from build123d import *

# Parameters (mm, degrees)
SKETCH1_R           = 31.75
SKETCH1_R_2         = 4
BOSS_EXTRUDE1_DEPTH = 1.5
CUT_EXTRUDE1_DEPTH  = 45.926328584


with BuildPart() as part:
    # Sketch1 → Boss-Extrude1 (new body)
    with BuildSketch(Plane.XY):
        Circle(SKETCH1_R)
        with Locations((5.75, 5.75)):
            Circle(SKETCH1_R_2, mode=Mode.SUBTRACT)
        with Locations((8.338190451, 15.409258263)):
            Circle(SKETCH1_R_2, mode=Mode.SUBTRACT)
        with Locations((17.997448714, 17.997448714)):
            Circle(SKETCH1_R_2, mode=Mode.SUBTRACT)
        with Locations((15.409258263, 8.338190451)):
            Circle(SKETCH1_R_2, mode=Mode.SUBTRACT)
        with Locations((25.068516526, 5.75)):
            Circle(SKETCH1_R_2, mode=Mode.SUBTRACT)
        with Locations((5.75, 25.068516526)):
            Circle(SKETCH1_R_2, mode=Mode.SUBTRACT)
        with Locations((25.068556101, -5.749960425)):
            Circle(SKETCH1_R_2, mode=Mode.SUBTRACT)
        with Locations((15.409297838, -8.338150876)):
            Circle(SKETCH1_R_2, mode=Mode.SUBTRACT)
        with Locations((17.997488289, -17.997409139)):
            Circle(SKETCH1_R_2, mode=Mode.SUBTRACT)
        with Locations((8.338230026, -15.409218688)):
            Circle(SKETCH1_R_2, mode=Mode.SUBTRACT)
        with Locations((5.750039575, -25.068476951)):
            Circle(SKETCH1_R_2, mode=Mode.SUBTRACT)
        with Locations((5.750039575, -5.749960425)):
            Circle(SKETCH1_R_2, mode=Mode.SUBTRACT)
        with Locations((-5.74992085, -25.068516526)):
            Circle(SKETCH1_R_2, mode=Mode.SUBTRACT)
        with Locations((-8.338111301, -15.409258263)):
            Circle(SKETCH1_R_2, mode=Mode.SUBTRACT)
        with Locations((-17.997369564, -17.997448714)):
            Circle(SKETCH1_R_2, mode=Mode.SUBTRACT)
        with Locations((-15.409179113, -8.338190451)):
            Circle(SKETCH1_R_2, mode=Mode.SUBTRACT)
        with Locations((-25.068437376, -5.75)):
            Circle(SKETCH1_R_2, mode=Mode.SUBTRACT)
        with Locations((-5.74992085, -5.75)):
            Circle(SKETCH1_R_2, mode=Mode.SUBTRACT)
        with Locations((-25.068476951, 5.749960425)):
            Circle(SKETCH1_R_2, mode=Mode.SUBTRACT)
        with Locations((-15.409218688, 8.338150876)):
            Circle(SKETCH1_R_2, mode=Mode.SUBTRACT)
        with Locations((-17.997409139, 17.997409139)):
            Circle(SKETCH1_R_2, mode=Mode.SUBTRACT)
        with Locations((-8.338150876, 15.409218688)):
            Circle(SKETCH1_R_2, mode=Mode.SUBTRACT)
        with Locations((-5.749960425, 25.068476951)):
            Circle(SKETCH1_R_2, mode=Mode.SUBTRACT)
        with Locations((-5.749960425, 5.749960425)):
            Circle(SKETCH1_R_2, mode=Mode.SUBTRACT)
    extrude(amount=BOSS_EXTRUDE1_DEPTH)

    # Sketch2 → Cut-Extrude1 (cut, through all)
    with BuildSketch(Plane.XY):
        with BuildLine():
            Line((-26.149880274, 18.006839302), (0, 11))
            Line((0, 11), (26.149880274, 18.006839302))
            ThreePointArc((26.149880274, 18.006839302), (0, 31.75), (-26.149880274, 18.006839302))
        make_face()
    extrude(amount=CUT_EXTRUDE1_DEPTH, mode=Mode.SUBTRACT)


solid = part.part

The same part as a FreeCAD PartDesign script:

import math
import FreeCAD as App
import Part
import Sketcher
from FreeCAD import Vector
Q = App.Units.Quantity

doc = App.newDocument("Part")
body = doc.addObject("PartDesign::Body", "Body")

# Sketch on XY plane
sketch1 = doc.addObject("Sketcher::SketchObject", "Sketch")
body.addObject(sketch1)
sketch1.AttachmentSupport = (doc.XY_Plane, [""])
sketch1.MapMode = "FlatFace"
sketch1.addGeometry([
    Part.Circle(Vector(0, 0, 0), Vector(0, 0, 1), 31.8),  # 0
    Part.Circle(Vector(-18, -18, 0), Vector(0, 0, 1), 4),  # 1
    Part.Circle(Vector(-5.7, -25.1, 0), Vector(0, 0, 1), 4),  # 2
    Part.Circle(Vector(-8.3, -15.4, 0), Vector(0, 0, 1), 4),  # 3
    Part.Circle(Vector(-15.4, -8.3, 0), Vector(0, 0, 1), 4),  # 4
    Part.Circle(Vector(-25.1, -5.8, 0), Vector(0, 0, 1), 4),  # 5
    Part.Circle(Vector(-5.7, -5.8, 0), Vector(0, 0, 1), 4),  # 6
    Part.Circle(Vector(5.8, -25.1, 0), Vector(0, 0, 1), 4),  # 7
    Part.Circle(Vector(8.3, -15.4, 0), Vector(0, 0, 1), 4),  # 8
    Part.Circle(Vector(18, -18, 0), Vector(0, 0, 1), 4),  # 9
    Part.Circle(Vector(5.8, -5.7, 0), Vector(0, 0, 1), 4),  # 10
    Part.Circle(Vector(15.4, -8.3, 0), Vector(0, 0, 1), 4),  # 11
    Part.Circle(Vector(25.1, -5.7, 0), Vector(0, 0, 1), 4),  # 12
    Part.Circle(Vector(-25.1, 5.7, 0), Vector(0, 0, 1), 4),  # 13
    Part.Circle(Vector(-15.4, 8.3, 0), Vector(0, 0, 1), 4),  # 14
    Part.Circle(Vector(-5.7, 5.7, 0), Vector(0, 0, 1), 4),  # 15
    Part.Circle(Vector(-18, 18, 0), Vector(0, 0, 1), 4),  # 16
    Part.Circle(Vector(-8.3, 15.4, 0), Vector(0, 0, 1), 4),  # 17
    Part.Circle(Vector(-5.7, 25.1, 0), Vector(0, 0, 1), 4),  # 18
    Part.Circle(Vector(5.8, 5.8, 0), Vector(0, 0, 1), 4),  # 19
    Part.Circle(Vector(25.1, 5.8, 0), Vector(0, 0, 1), 4),  # 20
    Part.Circle(Vector(15.4, 8.3, 0), Vector(0, 0, 1), 4),  # 21
    Part.Circle(Vector(8.3, 15.4, 0), Vector(0, 0, 1), 4),  # 22
    Part.Circle(Vector(5.8, 25.1, 0), Vector(0, 0, 1), 4),  # 23
    Part.Circle(Vector(18, 18, 0), Vector(0, 0, 1), 4),  # 24
], False)
sketch1.addConstraint([
    Sketcher.Constraint("Coincident", 0, 3, -1, 1),
    Sketcher.Constraint("Equal", 1, 2),
    Sketcher.Constraint("Equal", 2, 3),
    Sketcher.Constraint("Equal", 3, 4),
    Sketcher.Constraint("Equal", 4, 5),
    Sketcher.Constraint("Equal", 5, 6),
    Sketcher.Constraint("Equal", 6, 7),
    Sketcher.Constraint("Equal", 7, 8),
    Sketcher.Constraint("Equal", 8, 9),
    Sketcher.Constraint("Equal", 9, 10),
    Sketcher.Constraint("Equal", 10, 11),
    Sketcher.Constraint("Equal", 11, 12),
    Sketcher.Constraint("Equal", 12, 13),
    Sketcher.Constraint("Equal", 13, 14),
    Sketcher.Constraint("Equal", 14, 15),
    Sketcher.Constraint("Equal", 15, 16),
    Sketcher.Constraint("Equal", 16, 17),
    Sketcher.Constraint("Equal", 17, 18),
    Sketcher.Constraint("Equal", 18, 19),
    Sketcher.Constraint("Equal", 19, 20),
    Sketcher.Constraint("Equal", 20, 21),
    Sketcher.Constraint("Equal", 21, 22),
    Sketcher.Constraint("Equal", 22, 23),
    Sketcher.Constraint("Equal", 23, 24),
    Sketcher.Constraint("Horizontal", 5, 3, 6, 3),
    Sketcher.Constraint("Horizontal", 10, 3, 12, 3),
    Sketcher.Constraint("Horizontal", 13, 3, 15, 3),
    Sketcher.Constraint("Horizontal", 19, 3, 20, 3),
    Sketcher.Constraint("Vertical", 2, 3, 6, 3),
    Sketcher.Constraint("Vertical", 7, 3, 10, 3),
    Sketcher.Constraint("Vertical", 15, 3, 18, 3),
    Sketcher.Constraint("Vertical", 19, 3, 23, 3),
    Sketcher.Constraint("Diameter", 1, 8.0),
    Sketcher.Constraint("Diameter", 0, 63.5),
    Sketcher.Constraint("DistanceX", 15, 3, 10, 3, 11.5),
    Sketcher.Constraint("DistanceY", 6, 3, 19, 3, 11.5),
    Sketcher.Constraint("DistanceY", 5, 3, -1, 1, 5.75),
    Sketcher.Constraint("DistanceX", -1, 1, 19, 3, 5.75),
    Sketcher.Constraint("DistanceX", 3, 3, 9, 3, 26.3356),
    Sketcher.Constraint("DistanceX", 1, 3, -1, 1, 17.99737),
    Sketcher.Constraint("DistanceY", 1, 3, -1, 1, 17.997449),
    Sketcher.Constraint("DistanceX", 2, 3, -1, 1, 5.749921),
    Sketcher.Constraint("DistanceX", 3, 3, -1, 1, 8.338111),
    Sketcher.Constraint("DistanceY", 3, 3, -1, 1, 15.409258),
    Sketcher.Constraint("DistanceX", 4, 3, -1, 1, 15.409179),
    Sketcher.Constraint("DistanceY", 4, 3, -1, 1, 8.33819),
    Sketcher.Constraint("DistanceX", -1, 1, 7, 3, 5.75004),
    Sketcher.Constraint("DistanceX", -1, 1, 8, 3, 8.33823),
    Sketcher.Constraint("DistanceY", 8, 3, -1, 1, 15.409219),
    Sketcher.Constraint("DistanceY", 9, 3, -1, 1, 17.997409),
    Sketcher.Constraint("DistanceY", 10, 3, -1, 1, 5.74996),
    Sketcher.Constraint("DistanceY", 11, 3, -1, 1, 8.338151),
    Sketcher.Constraint("DistanceY", -1, 1, 13, 3, 5.74996),
    Sketcher.Constraint("DistanceX", 14, 3, -1, 1, 15.409219),
    Sketcher.Constraint("DistanceY", -1, 1, 14, 3, 8.338151),
    Sketcher.Constraint("DistanceX", 16, 3, -1, 1, 17.997409),
    Sketcher.Constraint("DistanceY", -1, 1, 16, 3, 17.997409),
    Sketcher.Constraint("DistanceX", 17, 3, -1, 1, 8.338151),
    Sketcher.Constraint("DistanceY", -1, 1, 17, 3, 15.409219),
    Sketcher.Constraint("DistanceX", -1, 1, 21, 3, 15.409258),
    Sketcher.Constraint("DistanceY", -1, 1, 21, 3, 8.33819),
    Sketcher.Constraint("DistanceX", -1, 1, 22, 3, 8.33819),
    Sketcher.Constraint("DistanceY", -1, 1, 22, 3, 15.409258),
    Sketcher.Constraint("DistanceX", -1, 1, 24, 3, 17.997449),
    Sketcher.Constraint("DistanceY", -1, 1, 24, 3, 17.997449),
    Sketcher.Constraint("DistanceY", 2, 3, 3, 3, 9.659258),
    Sketcher.Constraint("DistanceX", 5, 3, 4, 3, 9.659258),
    Sketcher.Constraint("DistanceY", 7, 3, 3, 3, 9.659219),
    Sketcher.Constraint("DistanceX", 11, 3, 9, 3, 2.58819),
    Sketcher.Constraint("DistanceX", 11, 3, 12, 3, 9.659258),
    Sketcher.Constraint("DistanceX", 13, 3, 14, 3, 9.659258),
    Sketcher.Constraint("DistanceY", 17, 3, 18, 3, 9.659258),
    Sketcher.Constraint("DistanceX", 11, 3, 20, 3, 9.659219),
    Sketcher.Constraint("DistanceY", 22, 3, 23, 3, 9.659258),
])
pad1 = doc.addObject("PartDesign::Pad", "Pad")
body.addObject(pad1)
pad1.Profile = sketch1
pad1.Length = 1.5

# Sketch on XY plane
sketch2 = doc.addObject("Sketcher::SketchObject", "Sketch001")
body.addObject(sketch2)
sketch2.AttachmentSupport = (doc.XY_Plane, [""])
sketch2.MapMode = "FlatFace"
sketch2.addGeometry([
    Part.LineSegment(Vector(-26, 18, 0), Vector(0, 11, 0)),
    Part.LineSegment(Vector(0, 11, 0), Vector(26, 18, 0)),
    Part.ArcOfCircle(Part.Circle(Vector(0, 0, 0), Vector(0, 0, 1), 32), math.radians(35), math.radians(145)),
], False)
sketch2.addConstraint([
    Sketcher.Constraint("Coincident", 0, 2, 1, 1),
    Sketcher.Constraint("Coincident", 1, 2, 2, 1),
    Sketcher.Constraint("Coincident", 2, 2, 0, 1),
    Sketcher.Constraint("Coincident", 2, 3, -1, 1),
    Sketcher.Constraint("PointOnObject", 0, 2, -2),
    Sketcher.Constraint("Horizontal", 1, 2, 2, 2),
    Sketcher.Constraint("Angle", 0, Q("-15 deg")),
    Sketcher.Constraint("Radius", 2, 31.75),
    Sketcher.Constraint("DistanceY", -1, 1, 0, 2, 11.0),
])
pocket1 = doc.addObject("PartDesign::Pocket", "Pocket")
body.addObject(pocket1)
pocket1.Profile = sketch2
pocket1.Type = "ThroughAll"
pocket1.Reversed = True

doc.recompute()
